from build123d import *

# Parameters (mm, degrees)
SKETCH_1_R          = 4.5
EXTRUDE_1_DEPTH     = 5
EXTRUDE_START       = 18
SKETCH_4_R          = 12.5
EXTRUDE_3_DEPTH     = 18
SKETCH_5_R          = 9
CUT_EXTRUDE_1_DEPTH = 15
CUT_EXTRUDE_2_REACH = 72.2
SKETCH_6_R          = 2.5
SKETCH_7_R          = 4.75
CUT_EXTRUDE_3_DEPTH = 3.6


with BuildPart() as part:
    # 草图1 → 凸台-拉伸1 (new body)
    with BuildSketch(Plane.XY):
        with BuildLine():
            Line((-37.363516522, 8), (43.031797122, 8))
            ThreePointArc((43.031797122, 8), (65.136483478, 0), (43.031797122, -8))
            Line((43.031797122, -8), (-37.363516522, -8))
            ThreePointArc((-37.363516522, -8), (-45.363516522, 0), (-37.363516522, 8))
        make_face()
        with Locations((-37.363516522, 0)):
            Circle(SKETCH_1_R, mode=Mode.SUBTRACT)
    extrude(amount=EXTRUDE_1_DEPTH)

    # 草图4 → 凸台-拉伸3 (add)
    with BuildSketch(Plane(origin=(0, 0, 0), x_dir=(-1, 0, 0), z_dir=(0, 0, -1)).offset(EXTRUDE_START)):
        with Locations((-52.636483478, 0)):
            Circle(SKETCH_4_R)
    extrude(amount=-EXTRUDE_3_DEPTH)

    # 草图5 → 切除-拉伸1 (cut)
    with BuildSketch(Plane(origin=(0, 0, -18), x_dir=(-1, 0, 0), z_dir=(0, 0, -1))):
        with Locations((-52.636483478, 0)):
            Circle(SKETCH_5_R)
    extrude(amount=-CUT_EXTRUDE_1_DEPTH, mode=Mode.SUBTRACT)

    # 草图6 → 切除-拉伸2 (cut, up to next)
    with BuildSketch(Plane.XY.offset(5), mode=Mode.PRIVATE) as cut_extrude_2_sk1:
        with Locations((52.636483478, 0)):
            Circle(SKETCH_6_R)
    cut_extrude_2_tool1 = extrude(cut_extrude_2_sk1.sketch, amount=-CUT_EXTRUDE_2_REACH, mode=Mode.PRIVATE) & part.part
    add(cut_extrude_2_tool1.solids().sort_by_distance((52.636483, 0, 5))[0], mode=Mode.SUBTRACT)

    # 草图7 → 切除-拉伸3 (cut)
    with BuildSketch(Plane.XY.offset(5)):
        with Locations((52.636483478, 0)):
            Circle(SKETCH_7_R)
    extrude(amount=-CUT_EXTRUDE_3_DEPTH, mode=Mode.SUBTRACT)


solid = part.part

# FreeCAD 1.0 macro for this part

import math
import FreeCAD as App
import Part
import Sketcher

V = App.Vector

doc = App.newDocument("Part")
params = doc.addObject("Spreadsheet::Sheet", "Params")
for row, (alias, value) in enumerate([
    ("sketch1_diameter", "9 mm"),
    ("sketch1_radius", "8 mm"),
    ("sketch1_radius2", "12.5 mm"),
    ("pad1_length", "5 mm"),
    ("sketch2_diameter", "25 mm"),
    ("pad2_length", "18 mm"),
    ("sketch3_diameter", "18 mm"),
    ("pocket1_length", "15 mm"),
    ("sketch4_diameter", "5 mm"),
    ("sketch5_diameter", "9.5 mm"),
    ("pocket3_length", "3.6 mm"),
], start=1):
    params.set(f"A{row}", alias)
    params.set(f"B{row}", "=" + value)
    params.setAlias(f"B{row}", alias)

body = doc.addObject("PartDesign::Body", "Body")

# Sketch on XY plane
sketch1 = body.newObject("Sketcher::SketchObject", "Sketch")
sketch1.AttachmentSupport = (doc.getObject("XY_Plane"), [""])
sketch1.MapMode = "FlatFace"
sketch1.addGeometry([
    Part.LineSegment(V(43, 8, 0), V(-37.4, 8, 0)),  # 0
    Part.ArcOfCircle(Part.Circle(V(-37.4, 0, 0), V(0, 0, 1), 8), math.radians(90), math.radians(270)),  # 1
    Part.LineSegment(V(-37.4, -8, 0), V(43, -8, 0)),  # 2
    Part.ArcOfCircle(Part.Circle(V(52.6, 0, 0), V(0, 0, 1), 12.5), math.radians(-140), math.radians(140)),  # 3
    Part.Circle(V(-37.4, 0, 0), V(0, 0, 1), 4.5),  # 4
], False)
sketch1.addConstraint([
    Sketcher.Constraint("Tangent", 0, 2, 1, 1),
    Sketcher.Constraint("Tangent", 1, 2, 2, 1),
    Sketcher.Constraint("Coincident", 2, 2, 3, 1),
    Sketcher.Constraint("Coincident", 3, 2, 0, 1),
    Sketcher.Constraint("Horizontal", 0),
    Sketcher.Constraint("Horizontal", 2),
    Sketcher.Constraint("Coincident", 4, 3, 1, 3),
    Sketcher.Constraint("Symmetric", 2, 2, 3, 2, -1),
    Sketcher.Constraint("Diameter", 4, 9.0),
    Sketcher.Constraint("Radius", 1, 8.0),
    Sketcher.Constraint("Radius", 3, 12.5),
    Sketcher.Constraint("DistanceX", 1, 3, 3, 3, 90.0),
    Sketcher.Constraint("DistanceX", 1, 3, -1, 1, 37.363517),
])
sketch1.setExpression("Constraints[8]", "Params.sketch1_diameter")
sketch1.setExpression("Constraints[9]", "Params.sketch1_radius")
sketch1.setExpression("Constraints[10]", "Params.sketch1_radius2")
pad1 = body.newObject("PartDesign::Pad", "Pad")
pad1.Profile = sketch1
pad1.setExpression("Length", "Params.pad1_length")

# Sketch on XY plane
sketch2 = body.newObject("Sketcher::SketchObject", "Sketch001")
sketch2.AttachmentSupport = (doc.getObject("XY_Plane"), [""])
sketch2.MapMode = "FlatFace"
sketch2.AttachmentOffset = App.Placement(V(0, 0, -18), App.Rotation())
sketch2.addGeometry(Part.Circle(V(53, 0, 0), V(0, 0, 1), 12), False)
sketch2.addConstraint([
    Sketcher.Constraint("PointOnObject", 0, 3, -1),
    Sketcher.Constraint("Diameter", 0, 25.0),
    Sketcher.Constraint("DistanceX", -1, 1, 0, 3, 52.636483),
])
sketch2.setExpression("Constraints[1]", "Params.sketch2_diameter")
pad2 = body.newObject("PartDesign::Pad", "Pad001")
pad2.Profile = sketch2
pad2.setExpression("Length", "Params.pad2_length")

# Sketch on XY plane
sketch3 = body.newObject("Sketcher::SketchObject", "Sketch002")
sketch3.AttachmentSupport = (doc.getObject("XY_Plane"), [""])
sketch3.MapMode = "FlatFace"
sketch3.AttachmentOffset = App.Placement(V(0, 0, -18), App.Rotation())
sketch3.addGeometry(Part.Circle(V(53, 0, 0), V(0, 0, 1), 9), False)
sketch3.addConstraint([
    Sketcher.Constraint("PointOnObject", 0, 3, -1),
    Sketcher.Constraint("Diameter", 0, 18.0),
    Sketcher.Constraint("DistanceX", -1, 1, 0, 3, 52.636483),
])
sketch3.setExpression("Constraints[1]", "Params.sketch3_diameter")
pocket1 = body.newObject("PartDesign::Pocket", "Pocket")
pocket1.Profile = sketch3
pocket1.setExpression("Length", "Params.pocket1_length")
pocket1.Reversed = True

# Sketch on XY plane
sketch4 = body.newObject("Sketcher::SketchObject", "Sketch003")
sketch4.AttachmentSupport = (doc.getObject("XY_Plane"), [""])
sketch4.MapMode = "FlatFace"
sketch4.AttachmentOffset = App.Placement(V(0, 0, 5), App.Rotation())
sketch4.addGeometry(Part.Circle(V(52.6, 0, 0), V(0, 0, 1), 2.5), False)
sketch4.addConstraint([
    Sketcher.Constraint("PointOnObject", 0, 3, -1),
    Sketcher.Constraint("Diameter", 0, 5.0),
    Sketcher.Constraint("DistanceX", -1, 1, 0, 3, 52.636483),
])
sketch4.setExpression("Constraints[1]", "Params.sketch4_diameter")
pocket2 = body.newObject("PartDesign::Pocket", "Pocket001")
pocket2.Profile = sketch4
pocket2.Type = "UpToFirst"

# Sketch on XY plane
sketch5 = body.newObject("Sketcher::SketchObject", "Sketch004")
sketch5.AttachmentSupport = (doc.getObject("XY_Plane"), [""])
sketch5.MapMode = "FlatFace"
sketch5.AttachmentOffset = App.Placement(V(0, 0, 5), App.Rotation())
sketch5.addGeometry(Part.Circle(V(52.6, 0, 0), V(0, 0, 1), 4.8), False)
sketch5.addConstraint([
    Sketcher.Constraint("PointOnObject", 0, 3, -1),
    Sketcher.Constraint("Diameter", 0, 9.5),
    Sketcher.Constraint("DistanceX", -1, 1, 0, 3, 52.636483),
])
sketch5.setExpression("Constraints[1]", "Params.sketch5_diameter")
pocket3 = body.newObject("PartDesign::Pocket", "Pocket002")
pocket3.Profile = sketch5
pocket3.setExpression("Length", "Params.pocket3_length")

doc.recompute()
